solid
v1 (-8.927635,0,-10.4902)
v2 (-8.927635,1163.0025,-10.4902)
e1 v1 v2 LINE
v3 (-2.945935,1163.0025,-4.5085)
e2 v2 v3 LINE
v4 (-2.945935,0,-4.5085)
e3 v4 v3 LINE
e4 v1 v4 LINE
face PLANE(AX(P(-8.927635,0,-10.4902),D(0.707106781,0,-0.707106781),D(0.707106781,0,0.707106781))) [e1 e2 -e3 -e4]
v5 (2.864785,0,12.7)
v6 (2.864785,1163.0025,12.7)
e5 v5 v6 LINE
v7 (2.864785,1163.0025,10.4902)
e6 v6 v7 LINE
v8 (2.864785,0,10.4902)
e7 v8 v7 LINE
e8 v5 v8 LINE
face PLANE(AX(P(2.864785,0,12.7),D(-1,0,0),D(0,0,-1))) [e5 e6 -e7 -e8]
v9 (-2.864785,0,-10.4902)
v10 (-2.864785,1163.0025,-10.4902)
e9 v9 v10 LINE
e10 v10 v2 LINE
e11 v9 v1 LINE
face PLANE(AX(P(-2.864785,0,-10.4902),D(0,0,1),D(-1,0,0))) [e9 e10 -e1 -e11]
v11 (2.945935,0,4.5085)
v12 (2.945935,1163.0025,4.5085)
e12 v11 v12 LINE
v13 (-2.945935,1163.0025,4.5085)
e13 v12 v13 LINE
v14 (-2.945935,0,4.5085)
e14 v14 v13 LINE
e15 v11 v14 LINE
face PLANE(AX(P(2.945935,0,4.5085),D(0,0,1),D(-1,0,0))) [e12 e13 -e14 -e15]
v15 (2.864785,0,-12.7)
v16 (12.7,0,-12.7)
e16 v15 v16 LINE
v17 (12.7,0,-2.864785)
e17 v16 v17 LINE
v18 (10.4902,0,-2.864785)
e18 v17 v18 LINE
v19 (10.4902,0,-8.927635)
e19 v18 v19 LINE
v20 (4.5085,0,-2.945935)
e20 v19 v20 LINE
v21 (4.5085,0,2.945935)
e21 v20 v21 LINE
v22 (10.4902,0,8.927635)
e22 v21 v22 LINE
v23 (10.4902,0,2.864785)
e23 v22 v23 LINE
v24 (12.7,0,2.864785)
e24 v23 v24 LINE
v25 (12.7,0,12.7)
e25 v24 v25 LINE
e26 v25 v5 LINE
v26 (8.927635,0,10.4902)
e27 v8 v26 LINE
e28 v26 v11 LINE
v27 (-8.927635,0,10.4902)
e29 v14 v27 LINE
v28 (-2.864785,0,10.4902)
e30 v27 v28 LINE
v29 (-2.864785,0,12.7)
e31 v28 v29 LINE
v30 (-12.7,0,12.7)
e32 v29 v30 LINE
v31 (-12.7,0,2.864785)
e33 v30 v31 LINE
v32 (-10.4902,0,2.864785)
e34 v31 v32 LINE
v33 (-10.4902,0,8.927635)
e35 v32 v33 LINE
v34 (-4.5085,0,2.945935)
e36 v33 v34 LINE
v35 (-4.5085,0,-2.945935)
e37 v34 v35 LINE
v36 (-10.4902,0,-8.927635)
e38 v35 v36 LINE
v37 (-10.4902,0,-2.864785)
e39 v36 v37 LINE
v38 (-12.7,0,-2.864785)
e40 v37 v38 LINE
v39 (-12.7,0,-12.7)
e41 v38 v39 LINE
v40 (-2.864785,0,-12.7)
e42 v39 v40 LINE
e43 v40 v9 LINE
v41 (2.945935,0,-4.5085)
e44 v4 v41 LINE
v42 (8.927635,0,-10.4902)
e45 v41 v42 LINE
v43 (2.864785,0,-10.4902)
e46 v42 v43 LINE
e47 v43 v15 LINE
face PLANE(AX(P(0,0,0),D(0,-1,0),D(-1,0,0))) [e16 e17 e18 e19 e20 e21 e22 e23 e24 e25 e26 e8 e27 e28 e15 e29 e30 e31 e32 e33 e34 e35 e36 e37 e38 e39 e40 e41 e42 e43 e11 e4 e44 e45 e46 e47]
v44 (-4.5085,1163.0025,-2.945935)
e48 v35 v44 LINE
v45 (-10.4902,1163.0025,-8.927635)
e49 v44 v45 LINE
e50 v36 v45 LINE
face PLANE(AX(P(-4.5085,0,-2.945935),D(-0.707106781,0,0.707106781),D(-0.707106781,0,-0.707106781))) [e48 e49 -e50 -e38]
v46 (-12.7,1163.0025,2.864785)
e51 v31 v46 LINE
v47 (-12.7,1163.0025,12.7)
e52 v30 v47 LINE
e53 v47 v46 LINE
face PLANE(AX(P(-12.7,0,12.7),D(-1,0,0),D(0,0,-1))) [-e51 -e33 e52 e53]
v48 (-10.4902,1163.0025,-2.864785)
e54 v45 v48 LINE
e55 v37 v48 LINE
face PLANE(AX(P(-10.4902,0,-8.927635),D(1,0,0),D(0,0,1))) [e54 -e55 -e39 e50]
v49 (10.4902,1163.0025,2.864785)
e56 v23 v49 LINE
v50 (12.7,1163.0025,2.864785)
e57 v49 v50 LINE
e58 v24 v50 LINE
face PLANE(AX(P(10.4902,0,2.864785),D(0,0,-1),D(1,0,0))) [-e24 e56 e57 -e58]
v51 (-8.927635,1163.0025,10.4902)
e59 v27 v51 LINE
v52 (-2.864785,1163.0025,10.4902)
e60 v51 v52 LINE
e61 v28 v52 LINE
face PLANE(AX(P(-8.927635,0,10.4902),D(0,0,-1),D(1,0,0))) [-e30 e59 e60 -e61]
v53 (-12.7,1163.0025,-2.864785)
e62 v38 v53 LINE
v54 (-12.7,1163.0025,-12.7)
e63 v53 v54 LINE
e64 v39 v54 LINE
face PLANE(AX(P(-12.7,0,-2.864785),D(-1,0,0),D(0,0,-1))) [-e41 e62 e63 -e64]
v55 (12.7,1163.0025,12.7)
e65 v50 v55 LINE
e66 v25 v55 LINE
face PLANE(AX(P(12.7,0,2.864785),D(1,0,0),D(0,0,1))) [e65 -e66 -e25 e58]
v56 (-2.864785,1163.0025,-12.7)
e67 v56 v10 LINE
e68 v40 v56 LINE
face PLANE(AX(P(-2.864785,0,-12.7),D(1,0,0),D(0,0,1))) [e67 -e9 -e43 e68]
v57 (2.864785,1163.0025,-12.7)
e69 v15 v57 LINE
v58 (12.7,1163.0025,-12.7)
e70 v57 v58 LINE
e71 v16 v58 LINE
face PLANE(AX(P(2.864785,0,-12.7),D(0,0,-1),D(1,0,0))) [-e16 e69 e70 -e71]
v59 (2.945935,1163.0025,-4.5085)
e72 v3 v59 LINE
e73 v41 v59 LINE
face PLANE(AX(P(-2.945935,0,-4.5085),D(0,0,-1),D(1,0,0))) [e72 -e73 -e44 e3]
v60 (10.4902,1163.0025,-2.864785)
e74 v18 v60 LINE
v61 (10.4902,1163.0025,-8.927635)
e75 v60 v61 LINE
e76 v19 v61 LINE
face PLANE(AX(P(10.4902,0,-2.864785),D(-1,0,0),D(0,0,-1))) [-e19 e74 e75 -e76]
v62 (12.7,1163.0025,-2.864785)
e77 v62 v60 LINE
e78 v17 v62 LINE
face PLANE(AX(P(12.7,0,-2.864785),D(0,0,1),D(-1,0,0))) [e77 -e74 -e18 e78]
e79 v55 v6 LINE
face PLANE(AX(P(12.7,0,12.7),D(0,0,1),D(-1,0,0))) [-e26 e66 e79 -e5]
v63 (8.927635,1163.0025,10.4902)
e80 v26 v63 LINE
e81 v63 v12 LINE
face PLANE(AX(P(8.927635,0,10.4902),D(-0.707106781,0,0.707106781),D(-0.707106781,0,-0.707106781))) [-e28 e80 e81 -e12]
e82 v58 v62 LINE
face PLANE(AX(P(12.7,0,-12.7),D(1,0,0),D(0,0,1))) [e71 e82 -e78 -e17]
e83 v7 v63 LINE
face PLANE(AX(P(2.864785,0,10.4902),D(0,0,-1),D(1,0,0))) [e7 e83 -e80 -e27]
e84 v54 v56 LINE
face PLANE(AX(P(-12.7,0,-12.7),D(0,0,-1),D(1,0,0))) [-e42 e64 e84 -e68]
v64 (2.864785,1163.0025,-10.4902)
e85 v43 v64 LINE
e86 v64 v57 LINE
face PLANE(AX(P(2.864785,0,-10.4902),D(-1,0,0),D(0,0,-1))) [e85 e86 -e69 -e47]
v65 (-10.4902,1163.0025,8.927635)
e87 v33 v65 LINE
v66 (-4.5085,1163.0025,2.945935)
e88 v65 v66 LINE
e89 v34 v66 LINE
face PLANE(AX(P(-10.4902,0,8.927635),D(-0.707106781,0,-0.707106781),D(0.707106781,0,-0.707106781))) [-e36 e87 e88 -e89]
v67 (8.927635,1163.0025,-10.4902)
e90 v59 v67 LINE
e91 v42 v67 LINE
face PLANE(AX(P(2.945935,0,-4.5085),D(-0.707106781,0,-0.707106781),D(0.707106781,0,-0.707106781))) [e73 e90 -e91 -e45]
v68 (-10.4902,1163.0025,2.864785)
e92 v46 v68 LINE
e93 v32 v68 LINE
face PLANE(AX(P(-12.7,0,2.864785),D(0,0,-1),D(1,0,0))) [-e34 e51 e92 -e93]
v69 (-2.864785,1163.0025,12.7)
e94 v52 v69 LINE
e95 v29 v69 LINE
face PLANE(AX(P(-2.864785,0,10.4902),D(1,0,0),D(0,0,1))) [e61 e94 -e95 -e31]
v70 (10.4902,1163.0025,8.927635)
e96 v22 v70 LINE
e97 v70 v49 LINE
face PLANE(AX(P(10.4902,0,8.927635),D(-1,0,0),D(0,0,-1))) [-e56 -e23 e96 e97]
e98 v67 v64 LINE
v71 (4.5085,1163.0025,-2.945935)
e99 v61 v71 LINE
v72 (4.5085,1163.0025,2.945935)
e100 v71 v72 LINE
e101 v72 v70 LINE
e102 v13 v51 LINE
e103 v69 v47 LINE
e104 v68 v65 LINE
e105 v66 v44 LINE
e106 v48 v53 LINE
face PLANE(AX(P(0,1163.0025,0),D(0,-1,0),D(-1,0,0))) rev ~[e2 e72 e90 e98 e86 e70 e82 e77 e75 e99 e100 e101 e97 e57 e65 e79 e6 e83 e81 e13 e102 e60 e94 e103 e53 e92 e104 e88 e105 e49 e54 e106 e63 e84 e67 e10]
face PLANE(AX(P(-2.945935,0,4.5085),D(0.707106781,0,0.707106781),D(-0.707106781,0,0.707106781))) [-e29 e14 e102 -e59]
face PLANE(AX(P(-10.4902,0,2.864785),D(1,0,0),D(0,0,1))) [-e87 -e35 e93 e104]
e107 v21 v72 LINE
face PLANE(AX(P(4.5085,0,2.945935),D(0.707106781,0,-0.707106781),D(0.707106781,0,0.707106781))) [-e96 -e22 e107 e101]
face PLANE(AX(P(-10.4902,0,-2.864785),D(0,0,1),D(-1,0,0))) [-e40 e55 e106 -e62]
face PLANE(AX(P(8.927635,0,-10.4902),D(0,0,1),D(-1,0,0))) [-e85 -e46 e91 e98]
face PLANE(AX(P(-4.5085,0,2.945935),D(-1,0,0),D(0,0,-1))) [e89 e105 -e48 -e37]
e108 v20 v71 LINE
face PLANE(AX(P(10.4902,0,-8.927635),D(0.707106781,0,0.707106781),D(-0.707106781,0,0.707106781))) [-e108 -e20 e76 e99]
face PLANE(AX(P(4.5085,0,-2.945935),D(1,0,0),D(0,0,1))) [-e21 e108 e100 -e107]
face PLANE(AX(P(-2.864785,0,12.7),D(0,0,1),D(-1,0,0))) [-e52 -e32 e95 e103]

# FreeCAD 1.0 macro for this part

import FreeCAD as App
import Part
import Sketcher
from FreeCAD import Vector
Q = App.Units.Quantity


def add_polygon(sketch, points):
    """Adds a closed chain of lines whose ends are joined by coincident constraints."""
    first, n = sketch.GeometryCount, len(points)
    for a, b in zip(points, points[1:] + points[:1]):
        sketch.addGeometry(Part.LineSegment(App.Vector(*a, 0), App.Vector(*b, 0)), False)
    for i in range(n):
        sketch.addConstraint(Sketcher.Constraint("Coincident", first + i, 2, first + (i + 1) % n, 1))

doc = App.newDocument("Part")
body = doc.addObject("PartDesign::Body", "Body")

# Sketch on XZ plane
sketch1 = body.newObject("Sketcher::SketchObject", "Sketch")
sketch1.AttachmentSupport = (doc.getObject("XZ_Plane"), [""])
sketch1.MapMode = "FlatFace"
add_polygon(sketch1, [(-2.9, -12.7), (-12.7, -12.7), (-12.7, -2.9), (-10.5, -2.9), (-10.5, -8.9), (-4.5, -2.9), (-4.5, 2.9), (-10.5, 8.9), (-10.5, 2.9), (-12.7, 2.9), (-12.7, 12.7), (-2.9, 12.7), (-2.9, 10.5), (-8.9, 10.5), (-2.9, 4.5), (2.9, 4.5), (8.9, 10.5), (2.9, 10.5), (2.9, 12.7), (12.7, 12.7), (12.7, 2.9), (10.5, 2.9), (10.5, 8.9), (4.5, 2.9), (4.5, -2.9), (10.5, -8.9), (10.5, -2.9), (12.7, -2.9), (12.7, -12.7), (2.9, -12.7), (2.9, -10.5), (8.9, -10.5), (2.9, -4.5), (-2.9, -4.5), (-8.9, -10.5), (-2.9, -10.5)])  # lines 0-35
sketch1.addConstraint(Sketcher.Constraint("Horizontal", 0))
sketch1.addConstraint(Sketcher.Constraint("Vertical", 1))
sketch1.addConstraint(Sketcher.Constraint("Horizontal", 2))
sketch1.addConstraint(Sketcher.Constraint("Vertical", 3))
sketch1.addConstraint(Sketcher.Constraint("Vertical", 5))
sketch1.addConstraint(Sketcher.Constraint("Vertical", 7))
sketch1.addConstraint(Sketcher.Constraint("Horizontal", 8))
sketch1.addConstraint(Sketcher.Constraint("Vertical", 9))
sketch1.addConstraint(Sketcher.Constraint("Horizontal", 10))
sketch1.addConstraint(Sketcher.Constraint("Vertical", 11))
sketch1.addConstraint(Sketcher.Constraint("Horizontal", 12))
sketch1.addConstraint(Sketcher.Constraint("Horizontal", 14))
sketch1.addConstraint(Sketcher.Constraint("Horizontal", 16))
sketch1.addConstraint(Sketcher.Constraint("Vertical", 17))
sketch1.addConstraint(Sketcher.Constraint("Horizontal", 18))
sketch1.addConstraint(Sketcher.Constraint("Vertical", 19))
sketch1.addConstraint(Sketcher.Constraint("Horizontal", 20))
sketch1.addConstraint(Sketcher.Constraint("Vertical", 21))
sketch1.addConstraint(Sketcher.Constraint("Vertical", 23))
sketch1.addConstraint(Sketcher.Constraint("Vertical", 25))
sketch1.addConstraint(Sketcher.Constraint("Horizontal", 26))
sketch1.addConstraint(Sketcher.Constraint("Vertical", 27))
sketch1.addConstraint(Sketcher.Constraint("Horizontal", 28))
sketch1.addConstraint(Sketcher.Constraint("Vertical", 29))
sketch1.addConstraint(Sketcher.Constraint("Horizontal", 30))
sketch1.addConstraint(Sketcher.Constraint("Horizontal", 32))
sketch1.addConstraint(Sketcher.Constraint("Horizontal", 34))
sketch1.addConstraint(Sketcher.Constraint("Vertical", 35))
sketch1.addConstraint(Sketcher.Constraint("Symmetric", 0, 2, 18, 2, -1, 1))
sketch1.addConstraint(Sketcher.Constraint("Symmetric", 2, 2, 20, 2, -1, 1))
sketch1.addConstraint(Sketcher.Constraint("Symmetric", 4, 2, 22, 2, -1, 1))
sketch1.addConstraint(Sketcher.Constraint("Symmetric", 6, 2, 24, 2, -1, 1))
sketch1.addConstraint(Sketcher.Constraint("Symmetric", 8, 2, 26, 2, -1, 1))
sketch1.addConstraint(Sketcher.Constraint("Symmetric", 10, 2, 28, 2, -1, 1))
sketch1.addConstraint(Sketcher.Constraint("Symmetric", 12, 2, 30, 2, -1, 1))
sketch1.addConstraint(Sketcher.Constraint("Symmetric", 13, 2, 31, 2, -1, 1))
sketch1.addConstraint(Sketcher.Constraint("Symmetric", 15, 2, 33, 2, -1, 1))
sketch1.addConstraint(Sketcher.Constraint("Symmetric", 12, 2, 15, 2, -2))
sketch1.addConstraint(Sketcher.Constraint("Symmetric", 10, 2, 17, 2, -2))
sketch1.addConstraint(Sketcher.Constraint("Symmetric", 8, 2, 19, 2, -2))
sketch1.addConstraint(Sketcher.Constraint("Symmetric", 6, 2, 21, 2, -2))
sketch1.addConstraint(Sketcher.Constraint("Perpendicular", 4, 6))
sketch1.addConstraint(Sketcher.Constraint("Parallel", 6, 13))
sketch1.addConstraint(Sketcher.Constraint("Perpendicular", 13, 15))
sketch1.addConstraint(Sketcher.Constraint("Parallel", 15, 22))
sketch1.addConstraint(Sketcher.Constraint("Perpendicular", 22, 24))
sketch1.addConstraint(Sketcher.Constraint("Perpendicular", 31, 33))
sketch1.addConstraint(Sketcher.Constraint("Horizontal", 5, 2, 22, 2))
sketch1.addConstraint(Sketcher.Constraint("Vertical", 11, 2, 34, 2))
sketch1.addConstraint(Sketcher.Constraint("Equal", 28, 1))
sketch1.addConstraint(Sketcher.Constraint("Equal", 34, 3))
sketch1.addConstraint(Sketcher.Constraint("Equal", 32, 5))
sketch1.addConstraint(Sketcher.Constraint("Equal", 26, 11))
sketch1.addConstraint(Sketcher.Constraint("Equal", 6, 13))
sketch1.addConstraint(Sketcher.Constraint("DistanceX", 0, 2, -1, 1, Q("0.5 in")))
sketch1.addConstraint(Sketcher.Constraint("DistanceX", 2, 1, 2, 2, Q("0.087 in")))
sketch1.addConstraint(Sketcher.Constraint("DistanceX", 4, 2, 23, 2, Q("0.355 in")))
sketch1.addConstraint(Sketcher.Constraint("DistanceX", 12, 2, 12, 1, Q("6.06285 mm")))
sketch1.addConstraint(Sketcher.Constraint("DistanceX", 14, 1, 14, 2, Q("5.891871 mm")))
pad1 = body.newObject("PartDesign::Pad", "Pad")
pad1.Profile = sketch1
pad1.Length = Q("45.7875 in")
pad1.Reversed = True

doc.recompute()
